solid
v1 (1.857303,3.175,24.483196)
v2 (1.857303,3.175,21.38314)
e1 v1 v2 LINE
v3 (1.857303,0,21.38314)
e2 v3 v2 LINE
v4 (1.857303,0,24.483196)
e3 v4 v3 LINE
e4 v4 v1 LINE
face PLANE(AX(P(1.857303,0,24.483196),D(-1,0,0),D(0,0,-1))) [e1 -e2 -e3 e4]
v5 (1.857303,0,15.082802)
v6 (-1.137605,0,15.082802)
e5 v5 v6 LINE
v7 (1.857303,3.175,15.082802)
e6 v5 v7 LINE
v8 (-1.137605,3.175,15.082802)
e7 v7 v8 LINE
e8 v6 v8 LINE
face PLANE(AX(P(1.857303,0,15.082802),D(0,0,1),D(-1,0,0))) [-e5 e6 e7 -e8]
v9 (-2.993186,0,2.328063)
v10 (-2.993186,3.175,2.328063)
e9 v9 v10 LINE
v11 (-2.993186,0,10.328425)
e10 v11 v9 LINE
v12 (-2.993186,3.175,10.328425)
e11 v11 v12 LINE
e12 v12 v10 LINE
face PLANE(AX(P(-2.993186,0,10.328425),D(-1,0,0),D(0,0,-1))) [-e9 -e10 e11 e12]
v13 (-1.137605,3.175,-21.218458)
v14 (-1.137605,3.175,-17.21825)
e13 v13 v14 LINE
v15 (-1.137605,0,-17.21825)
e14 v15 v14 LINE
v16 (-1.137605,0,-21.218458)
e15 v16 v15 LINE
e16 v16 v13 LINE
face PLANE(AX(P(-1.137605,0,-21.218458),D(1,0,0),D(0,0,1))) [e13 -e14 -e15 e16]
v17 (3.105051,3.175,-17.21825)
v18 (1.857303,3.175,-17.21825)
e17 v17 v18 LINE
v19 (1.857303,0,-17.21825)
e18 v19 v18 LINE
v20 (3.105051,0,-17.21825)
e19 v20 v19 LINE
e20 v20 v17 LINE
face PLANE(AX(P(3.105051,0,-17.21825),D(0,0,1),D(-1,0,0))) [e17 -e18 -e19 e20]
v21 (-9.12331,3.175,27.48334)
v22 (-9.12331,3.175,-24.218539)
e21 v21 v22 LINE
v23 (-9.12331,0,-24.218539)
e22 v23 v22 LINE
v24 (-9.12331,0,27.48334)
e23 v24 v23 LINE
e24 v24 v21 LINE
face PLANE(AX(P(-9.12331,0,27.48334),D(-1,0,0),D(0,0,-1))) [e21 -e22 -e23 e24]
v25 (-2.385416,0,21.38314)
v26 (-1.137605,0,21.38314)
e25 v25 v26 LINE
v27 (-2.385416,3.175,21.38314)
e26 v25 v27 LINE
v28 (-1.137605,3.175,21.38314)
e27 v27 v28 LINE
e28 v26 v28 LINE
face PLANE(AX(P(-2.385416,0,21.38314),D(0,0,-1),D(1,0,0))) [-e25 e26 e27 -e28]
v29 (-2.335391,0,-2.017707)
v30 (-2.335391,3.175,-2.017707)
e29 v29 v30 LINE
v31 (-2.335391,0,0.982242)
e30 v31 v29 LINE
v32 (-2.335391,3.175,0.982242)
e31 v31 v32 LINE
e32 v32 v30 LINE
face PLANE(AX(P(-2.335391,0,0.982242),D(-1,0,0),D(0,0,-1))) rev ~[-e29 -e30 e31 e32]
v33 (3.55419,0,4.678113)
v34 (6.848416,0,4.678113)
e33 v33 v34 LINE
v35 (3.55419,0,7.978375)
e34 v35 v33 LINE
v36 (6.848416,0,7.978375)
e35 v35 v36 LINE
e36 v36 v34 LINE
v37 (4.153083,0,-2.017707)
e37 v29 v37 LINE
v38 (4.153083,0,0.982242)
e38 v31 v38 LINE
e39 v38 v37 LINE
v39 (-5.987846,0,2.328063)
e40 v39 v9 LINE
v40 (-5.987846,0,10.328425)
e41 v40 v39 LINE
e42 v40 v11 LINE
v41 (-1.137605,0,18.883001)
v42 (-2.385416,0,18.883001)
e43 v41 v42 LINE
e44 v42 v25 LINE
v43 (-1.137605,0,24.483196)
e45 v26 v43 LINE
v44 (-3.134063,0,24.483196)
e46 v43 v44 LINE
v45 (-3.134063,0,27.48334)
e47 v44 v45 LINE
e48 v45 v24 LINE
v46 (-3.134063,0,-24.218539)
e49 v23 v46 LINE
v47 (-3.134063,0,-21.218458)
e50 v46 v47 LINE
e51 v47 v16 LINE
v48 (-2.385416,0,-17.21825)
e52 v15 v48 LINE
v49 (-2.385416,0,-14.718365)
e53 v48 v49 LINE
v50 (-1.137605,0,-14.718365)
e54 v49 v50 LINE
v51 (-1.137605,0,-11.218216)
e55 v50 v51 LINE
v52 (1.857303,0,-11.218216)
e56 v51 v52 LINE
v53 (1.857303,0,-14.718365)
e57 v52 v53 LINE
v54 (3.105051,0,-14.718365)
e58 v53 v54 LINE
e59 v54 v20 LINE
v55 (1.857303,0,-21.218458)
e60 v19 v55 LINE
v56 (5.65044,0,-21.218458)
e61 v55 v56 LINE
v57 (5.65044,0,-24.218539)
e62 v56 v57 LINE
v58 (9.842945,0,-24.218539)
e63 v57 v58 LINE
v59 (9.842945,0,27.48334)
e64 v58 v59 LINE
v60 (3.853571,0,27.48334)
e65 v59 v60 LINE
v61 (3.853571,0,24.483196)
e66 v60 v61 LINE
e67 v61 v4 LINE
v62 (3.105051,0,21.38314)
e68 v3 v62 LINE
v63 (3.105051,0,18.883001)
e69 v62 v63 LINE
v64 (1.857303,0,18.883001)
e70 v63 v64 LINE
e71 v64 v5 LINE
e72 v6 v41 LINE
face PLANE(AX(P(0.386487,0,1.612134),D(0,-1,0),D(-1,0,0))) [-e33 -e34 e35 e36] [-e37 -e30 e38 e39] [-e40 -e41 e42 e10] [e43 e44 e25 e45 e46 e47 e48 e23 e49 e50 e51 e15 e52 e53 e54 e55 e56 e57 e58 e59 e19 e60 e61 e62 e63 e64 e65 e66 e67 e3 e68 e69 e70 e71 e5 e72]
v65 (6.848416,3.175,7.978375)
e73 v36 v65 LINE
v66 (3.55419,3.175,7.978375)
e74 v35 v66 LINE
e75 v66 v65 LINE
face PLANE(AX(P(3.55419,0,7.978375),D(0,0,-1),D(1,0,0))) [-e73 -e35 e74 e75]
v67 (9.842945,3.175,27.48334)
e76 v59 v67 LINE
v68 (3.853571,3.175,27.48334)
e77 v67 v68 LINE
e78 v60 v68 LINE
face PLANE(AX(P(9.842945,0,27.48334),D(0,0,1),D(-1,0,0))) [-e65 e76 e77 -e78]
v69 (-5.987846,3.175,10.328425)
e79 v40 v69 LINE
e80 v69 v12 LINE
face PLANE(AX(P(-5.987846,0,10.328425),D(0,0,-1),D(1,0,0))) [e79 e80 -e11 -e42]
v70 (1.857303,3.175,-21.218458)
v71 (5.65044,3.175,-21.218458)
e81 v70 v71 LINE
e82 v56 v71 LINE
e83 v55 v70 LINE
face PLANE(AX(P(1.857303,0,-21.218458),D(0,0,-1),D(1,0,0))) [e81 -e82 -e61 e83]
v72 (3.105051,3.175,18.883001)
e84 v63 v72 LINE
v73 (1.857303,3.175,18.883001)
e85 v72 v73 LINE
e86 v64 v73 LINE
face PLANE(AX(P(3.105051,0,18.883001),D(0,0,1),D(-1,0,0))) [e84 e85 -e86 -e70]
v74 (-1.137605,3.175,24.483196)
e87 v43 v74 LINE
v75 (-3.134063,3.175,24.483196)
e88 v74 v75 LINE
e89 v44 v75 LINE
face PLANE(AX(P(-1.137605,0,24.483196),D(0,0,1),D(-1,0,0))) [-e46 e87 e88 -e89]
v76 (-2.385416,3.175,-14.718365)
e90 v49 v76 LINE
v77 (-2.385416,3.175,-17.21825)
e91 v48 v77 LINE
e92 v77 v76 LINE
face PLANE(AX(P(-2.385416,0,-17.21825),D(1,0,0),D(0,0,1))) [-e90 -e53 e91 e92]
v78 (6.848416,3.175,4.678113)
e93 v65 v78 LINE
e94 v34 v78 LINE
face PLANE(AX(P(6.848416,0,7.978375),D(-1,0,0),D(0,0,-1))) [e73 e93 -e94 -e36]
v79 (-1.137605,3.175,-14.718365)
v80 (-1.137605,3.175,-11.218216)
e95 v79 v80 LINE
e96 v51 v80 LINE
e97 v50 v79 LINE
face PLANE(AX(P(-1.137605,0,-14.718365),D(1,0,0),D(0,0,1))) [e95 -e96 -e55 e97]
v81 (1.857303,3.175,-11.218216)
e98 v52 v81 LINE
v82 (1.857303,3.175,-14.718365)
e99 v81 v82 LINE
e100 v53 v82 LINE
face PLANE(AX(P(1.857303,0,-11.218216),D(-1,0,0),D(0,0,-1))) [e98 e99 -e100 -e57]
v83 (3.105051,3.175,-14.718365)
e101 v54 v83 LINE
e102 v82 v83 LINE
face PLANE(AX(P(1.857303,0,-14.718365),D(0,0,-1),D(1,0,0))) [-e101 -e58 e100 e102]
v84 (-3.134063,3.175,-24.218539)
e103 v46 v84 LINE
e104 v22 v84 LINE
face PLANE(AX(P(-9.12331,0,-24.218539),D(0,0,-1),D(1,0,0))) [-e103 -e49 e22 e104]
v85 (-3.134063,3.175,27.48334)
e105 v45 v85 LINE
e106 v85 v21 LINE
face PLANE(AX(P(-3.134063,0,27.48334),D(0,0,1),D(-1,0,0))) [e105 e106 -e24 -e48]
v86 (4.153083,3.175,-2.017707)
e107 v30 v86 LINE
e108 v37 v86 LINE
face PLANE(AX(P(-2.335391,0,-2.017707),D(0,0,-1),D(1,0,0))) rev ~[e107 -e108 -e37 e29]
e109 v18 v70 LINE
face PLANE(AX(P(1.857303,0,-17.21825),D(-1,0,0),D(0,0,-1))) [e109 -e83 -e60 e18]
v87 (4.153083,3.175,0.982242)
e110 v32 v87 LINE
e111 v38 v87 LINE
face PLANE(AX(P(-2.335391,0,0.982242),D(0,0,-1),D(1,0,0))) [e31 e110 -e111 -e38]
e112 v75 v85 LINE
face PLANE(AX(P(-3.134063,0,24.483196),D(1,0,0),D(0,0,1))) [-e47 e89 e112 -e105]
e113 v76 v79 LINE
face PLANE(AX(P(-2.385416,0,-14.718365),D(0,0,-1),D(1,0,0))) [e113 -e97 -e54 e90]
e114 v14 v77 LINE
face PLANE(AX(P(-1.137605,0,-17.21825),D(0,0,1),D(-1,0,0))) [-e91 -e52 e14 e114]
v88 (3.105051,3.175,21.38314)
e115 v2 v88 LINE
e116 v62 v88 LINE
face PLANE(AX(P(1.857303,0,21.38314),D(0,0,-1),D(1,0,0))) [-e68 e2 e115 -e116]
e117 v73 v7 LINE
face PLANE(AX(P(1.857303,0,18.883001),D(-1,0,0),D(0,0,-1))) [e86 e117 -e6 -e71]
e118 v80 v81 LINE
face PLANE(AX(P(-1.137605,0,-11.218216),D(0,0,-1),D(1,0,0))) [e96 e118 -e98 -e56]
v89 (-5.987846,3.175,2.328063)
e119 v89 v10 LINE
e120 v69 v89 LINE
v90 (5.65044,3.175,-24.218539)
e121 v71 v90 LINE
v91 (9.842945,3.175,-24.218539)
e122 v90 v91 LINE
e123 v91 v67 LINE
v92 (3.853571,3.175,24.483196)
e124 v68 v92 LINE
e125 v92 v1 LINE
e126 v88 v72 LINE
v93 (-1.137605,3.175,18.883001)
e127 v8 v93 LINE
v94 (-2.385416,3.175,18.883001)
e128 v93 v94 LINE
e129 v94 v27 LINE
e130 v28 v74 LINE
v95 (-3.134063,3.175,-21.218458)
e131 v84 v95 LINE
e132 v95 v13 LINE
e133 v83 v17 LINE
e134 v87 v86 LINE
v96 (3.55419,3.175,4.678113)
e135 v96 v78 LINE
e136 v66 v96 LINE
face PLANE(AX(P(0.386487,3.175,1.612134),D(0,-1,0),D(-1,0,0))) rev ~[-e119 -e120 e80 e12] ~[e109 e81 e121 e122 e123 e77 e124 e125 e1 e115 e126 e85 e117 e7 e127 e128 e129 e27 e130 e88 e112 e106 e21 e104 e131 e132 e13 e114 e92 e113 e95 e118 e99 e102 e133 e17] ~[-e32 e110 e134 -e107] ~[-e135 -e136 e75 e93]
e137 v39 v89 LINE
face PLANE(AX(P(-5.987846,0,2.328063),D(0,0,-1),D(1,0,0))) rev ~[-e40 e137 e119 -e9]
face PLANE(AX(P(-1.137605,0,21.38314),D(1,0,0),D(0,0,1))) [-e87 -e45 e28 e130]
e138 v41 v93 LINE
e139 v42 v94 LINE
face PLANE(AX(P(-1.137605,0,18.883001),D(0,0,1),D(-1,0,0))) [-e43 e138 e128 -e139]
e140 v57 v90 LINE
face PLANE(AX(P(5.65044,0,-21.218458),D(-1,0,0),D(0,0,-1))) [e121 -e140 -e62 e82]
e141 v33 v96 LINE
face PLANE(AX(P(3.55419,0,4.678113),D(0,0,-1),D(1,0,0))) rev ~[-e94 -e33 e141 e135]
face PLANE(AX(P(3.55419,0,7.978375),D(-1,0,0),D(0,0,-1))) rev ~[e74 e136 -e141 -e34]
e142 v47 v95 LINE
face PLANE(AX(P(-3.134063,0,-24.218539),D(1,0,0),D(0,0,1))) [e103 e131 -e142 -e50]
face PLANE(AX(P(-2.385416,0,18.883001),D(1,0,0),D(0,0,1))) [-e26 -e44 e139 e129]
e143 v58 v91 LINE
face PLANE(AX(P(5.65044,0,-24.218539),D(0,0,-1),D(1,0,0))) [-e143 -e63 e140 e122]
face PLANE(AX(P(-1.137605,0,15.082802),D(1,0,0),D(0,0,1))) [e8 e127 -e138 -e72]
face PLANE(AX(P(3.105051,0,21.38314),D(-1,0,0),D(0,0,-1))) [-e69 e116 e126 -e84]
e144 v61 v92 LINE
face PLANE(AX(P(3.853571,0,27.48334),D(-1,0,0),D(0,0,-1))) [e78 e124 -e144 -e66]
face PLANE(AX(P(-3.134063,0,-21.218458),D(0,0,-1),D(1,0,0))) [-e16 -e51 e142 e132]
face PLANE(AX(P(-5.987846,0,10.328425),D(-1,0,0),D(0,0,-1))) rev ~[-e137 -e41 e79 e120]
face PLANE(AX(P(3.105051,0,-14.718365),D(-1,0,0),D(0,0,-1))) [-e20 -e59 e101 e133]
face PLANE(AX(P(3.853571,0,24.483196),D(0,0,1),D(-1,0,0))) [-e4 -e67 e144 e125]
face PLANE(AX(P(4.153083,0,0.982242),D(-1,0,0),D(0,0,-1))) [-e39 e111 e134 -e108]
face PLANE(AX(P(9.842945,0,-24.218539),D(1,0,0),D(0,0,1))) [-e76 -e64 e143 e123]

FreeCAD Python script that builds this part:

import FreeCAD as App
import Part
import Sketcher
from FreeCAD import Vector
Q = App.Units.Quantity


def add_polygon(sketch, points):
    """Adds a closed chain of lines whose ends are joined by coincident constraints."""
    first, n = sketch.GeometryCount, len(points)
    for a, b in zip(points, points[1:] + points[:1]):
        sketch.addGeometry(Part.LineSegment(App.Vector(*a, 0), App.Vector(*b, 0)), False)
    for i in range(n):
        sketch.addConstraint(Sketcher.Constraint("Coincident", first + i, 2, first + (i + 1) % n, 1))

doc = App.newDocument("Part")
body = doc.addObject("PartDesign::Body", "Body")

sketch1 = body.newObject("Sketcher::SketchObject", "Sketch")
sketch1.AttachmentSupport = (doc.getObject("XZ_Plane"), [""])
sketch1.MapMode = "FlatFace"
add_polygon(sketch1, [(-9.12331, 27.48334), (-3.134063, 27.48334), (-3.134063, 24.483196), (-1.137605, 24.483196), (-1.137605, 21.38314), (-2.385416, 21.38314), (-2.385416, 18.883001), (-1.137605, 18.883001), (-1.137605, 15.082802), (1.857303, 15.082802), (1.857303, 18.883001), (3.105051, 18.883001), (3.105051, 21.38314), (1.857303, 21.38314), (1.857303, 24.483196), (3.853571, 24.483196), (3.853571, 27.48334), (9.842945, 27.48334), (9.842945, -24.218539), (5.65044, -24.218539), (5.65044, -21.218458), (1.857303, -21.218458), (1.857303, -17.21825), (3.105051, -17.21825), (3.105051, -14.718365), (1.857303, -14.718365), (1.857303, -11.218216), (-1.137605, -11.218216), (-1.137605, -14.718365), (-2.385416, -14.718365), (-2.385416, -17.21825), (-1.137605, -17.21825), (-1.137605, -21.218458), (-3.134063, -21.218458), (-3.134063, -24.218539), (-9.12331, -24.218539)])
add_polygon(sketch1, [(3.55419, 7.978375), (3.55419, 4.678113), (6.848416, 4.678113), (6.848416, 7.978375)])
add_polygon(sketch1, [(-5.987846, 10.328425), (-5.987846, 2.328063), (-2.993186, 2.328063), (-2.993186, 10.328425)])
add_polygon(sketch1, [(-2.335391, 0.982242), (-2.335391, -2.017707), (4.153083, -2.017707), (4.153083, 0.982242)])
sketch1.addConstraint([
    Sketcher.Constraint("Horizontal", 0),
    Sketcher.Constraint("Vertical", 1),
    Sketcher.Constraint("Horizontal", 2),
    Sketcher.Constraint("Vertical", 3),
    Sketcher.Constraint("Horizontal", 4),
    Sketcher.Constraint("Vertical", 5),
    Sketcher.Constraint("Horizontal", 6),
    Sketcher.Constraint("Vertical", 7),
    Sketcher.Constraint("Horizontal", 8),
    Sketcher.Constraint("Vertical", 9),
    Sketcher.Constraint("Horizontal", 10),
    Sketcher.Constraint("Vertical", 11),
    Sketcher.Constraint("Horizontal", 12),
    Sketcher.Constraint("Vertical", 13),
    Sketcher.Constraint("Horizontal", 14),
    Sketcher.Constraint("Vertical", 15),
    Sketcher.Constraint("Horizontal", 16),
    Sketcher.Constraint("Vertical", 17),
    Sketcher.Constraint("Horizontal", 18),
    Sketcher.Constraint("Vertical", 19),
    Sketcher.Constraint("Horizontal", 20),
    Sketcher.Constraint("Vertical", 21),
    Sketcher.Constraint("Horizontal", 22),
    Sketcher.Constraint("Vertical", 23),
    Sketcher.Constraint("Horizontal", 24),
    Sketcher.Constraint("Vertical", 25),
    Sketcher.Constraint("Horizontal", 26),
    Sketcher.Constraint("Vertical", 27),
    Sketcher.Constraint("Horizontal", 28),
    Sketcher.Constraint("Vertical", 29),
    Sketcher.Constraint("Horizontal", 30),
    Sketcher.Constraint("Vertical", 31),
    Sketcher.Constraint("Horizontal", 32),
    Sketcher.Constraint("Vertical", 33),
    Sketcher.Constraint("Horizontal", 34),
    Sketcher.Constraint("Vertical", 35),
    Sketcher.Constraint("Vertical", 36),
    Sketcher.Constraint("Horizontal", 37),
    Sketcher.Constraint("Vertical", 38),
    Sketcher.Constraint("Horizontal", 39),
    Sketcher.Constraint("Vertical", 40),
    Sketcher.Constraint("Horizontal", 41),
    Sketcher.Constraint("Vertical", 42),
    Sketcher.Constraint("Horizontal", 43),
    Sketcher.Constraint("Vertical", 44),
    Sketcher.Constraint("Horizontal", 45),
    Sketcher.Constraint("Vertical", 46),
    Sketcher.Constraint("Horizontal", 47),
    Sketcher.Constraint("Horizontal", 6, 2, 9, 2),
    Sketcher.Constraint("Horizontal", 4, 2, 11, 2),
    Sketcher.Constraint("Horizontal", 2, 2, 13, 2),
    Sketcher.Constraint("Horizontal", 0, 2, 15, 2),
    Sketcher.Constraint("Horizontal", 24, 2, 27, 2),
    Sketcher.Constraint("Horizontal", 22, 2, 29, 2),
    Sketcher.Constraint("Horizontal", 20, 2, 31, 2),
    Sketcher.Constraint("Horizontal", 18, 2, 33, 2),
    Sketcher.Constraint("Vertical", 3, 2, 6, 2),
    Sketcher.Constraint("Vertical", 9, 2, 12, 2),
    Sketcher.Constraint("Vertical", 13, 2, 20, 2),
    Sketcher.Constraint("Vertical", 11, 2, 22, 2),
    Sketcher.Constraint("Vertical", 21, 2, 24, 2),
    Sketcher.Constraint("Vertical", 7, 2, 26, 2),
    Sketcher.Constraint("Vertical", 5, 2, 28, 2),
    Sketcher.Constraint("Vertical", 27, 2, 30, 2),
    Sketcher.Constraint("Vertical", 1, 2, 32, 2),
    Sketcher.Constraint("DistanceX", 41, 1, 41, 2, Q("0.1179 in")),
    Sketcher.Constraint("DistanceY", 7, 2, 7, 1, Q("3.800199 mm")),
    Sketcher.Constraint("DistanceX", 4, 2, 4, 1, Q("1.247811 mm")),
    Sketcher.Constraint("DistanceX", 8, 1, 8, 2, Q("2.994909 mm")),
    Sketcher.Constraint("DistanceY", 5, 2, 5, 1, Q("2.500139 mm")),
    Sketcher.Constraint("DistanceY", 17, 2, 17, 1, Q("51.701879 mm")),
    Sketcher.Constraint("DistanceY", 19, 1, 19, 2, Q("3.000081 mm")),
    Sketcher.Constraint("DistanceY", 21, 1, 21, 2, Q("4.000208 mm")),
    Sketcher.Constraint("DistanceY", 25, 1, 25, 2, Q("3.500149 mm")),
    Sketcher.Constraint("DistanceY", 44, 2, 44, 1, Q("2.999949 mm")),
    Sketcher.Constraint("DistanceY", -1, 1, 5, 2, Q("18.883001 mm")),
    Sketcher.Constraint("DistanceY", 3, 2, 0, 2, Q("6.1002 mm")),
    Sketcher.Constraint("DistanceX", 41, 2, 37, 2, Q("9.841602 mm")),
    Sketcher.Constraint("DistanceX", 0, 1, 0, 2, Q("5.989247 mm")),
    Sketcher.Constraint("DistanceX", 2, 1, 2, 2, Q("1.996458 mm")),
    Sketcher.Constraint("DistanceX", 10, 1, 10, 2, Q("1.247748 mm")),
    Sketcher.Constraint("DistanceX", 14, 1, 14, 2, Q("1.996268 mm")),
    Sketcher.Constraint("DistanceX", 16, 1, 16, 2, Q("5.989374 mm")),
    Sketcher.Constraint("DistanceX", 18, 2, 18, 1, Q("4.192505 mm")),
    Sketcher.Constraint("DistanceX", 37, 1, 37, 2, Q("3.294226 mm")),
    Sketcher.Constraint("DistanceX", 45, 1, 45, 2, Q("6.488475 mm")),
    Sketcher.Constraint("DistanceY", 1, 2, 1, 1, Q("3.000144 mm")),
    Sketcher.Constraint("DistanceY", 23, 1, 23, 2, Q("2.499885 mm")),
    Sketcher.Constraint("DistanceY", 36, 2, 36, 1, Q("3.300262 mm")),
    Sketcher.Constraint("DistanceY", 40, 2, 40, 1, Q("8.000363 mm")),
    Sketcher.Constraint("DistanceX", -1, 1, 10, 2, Q("3.105051 mm")),
    Sketcher.Constraint("DistanceX", -1, 1, 36, 2, Q("3.55419 mm")),
    Sketcher.Constraint("DistanceX", 44, 2, -1, 1, Q("2.335391 mm")),
    Sketcher.Constraint("DistanceY", 36, 2, 8, 2, Q("10.404689 mm")),
    Sketcher.Constraint("DistanceY", 40, 2, 36, 2, Q("2.35005 mm")),
    Sketcher.Constraint("DistanceY", 44, 2, 41, 2, Q("4.345769 mm")),
])
pad1 = body.newObject("PartDesign::Pad", "Pad")
pad1.Profile = sketch1
pad1.Length = Q("0.125 in")
pad1.Reversed = True

doc.recompute()
